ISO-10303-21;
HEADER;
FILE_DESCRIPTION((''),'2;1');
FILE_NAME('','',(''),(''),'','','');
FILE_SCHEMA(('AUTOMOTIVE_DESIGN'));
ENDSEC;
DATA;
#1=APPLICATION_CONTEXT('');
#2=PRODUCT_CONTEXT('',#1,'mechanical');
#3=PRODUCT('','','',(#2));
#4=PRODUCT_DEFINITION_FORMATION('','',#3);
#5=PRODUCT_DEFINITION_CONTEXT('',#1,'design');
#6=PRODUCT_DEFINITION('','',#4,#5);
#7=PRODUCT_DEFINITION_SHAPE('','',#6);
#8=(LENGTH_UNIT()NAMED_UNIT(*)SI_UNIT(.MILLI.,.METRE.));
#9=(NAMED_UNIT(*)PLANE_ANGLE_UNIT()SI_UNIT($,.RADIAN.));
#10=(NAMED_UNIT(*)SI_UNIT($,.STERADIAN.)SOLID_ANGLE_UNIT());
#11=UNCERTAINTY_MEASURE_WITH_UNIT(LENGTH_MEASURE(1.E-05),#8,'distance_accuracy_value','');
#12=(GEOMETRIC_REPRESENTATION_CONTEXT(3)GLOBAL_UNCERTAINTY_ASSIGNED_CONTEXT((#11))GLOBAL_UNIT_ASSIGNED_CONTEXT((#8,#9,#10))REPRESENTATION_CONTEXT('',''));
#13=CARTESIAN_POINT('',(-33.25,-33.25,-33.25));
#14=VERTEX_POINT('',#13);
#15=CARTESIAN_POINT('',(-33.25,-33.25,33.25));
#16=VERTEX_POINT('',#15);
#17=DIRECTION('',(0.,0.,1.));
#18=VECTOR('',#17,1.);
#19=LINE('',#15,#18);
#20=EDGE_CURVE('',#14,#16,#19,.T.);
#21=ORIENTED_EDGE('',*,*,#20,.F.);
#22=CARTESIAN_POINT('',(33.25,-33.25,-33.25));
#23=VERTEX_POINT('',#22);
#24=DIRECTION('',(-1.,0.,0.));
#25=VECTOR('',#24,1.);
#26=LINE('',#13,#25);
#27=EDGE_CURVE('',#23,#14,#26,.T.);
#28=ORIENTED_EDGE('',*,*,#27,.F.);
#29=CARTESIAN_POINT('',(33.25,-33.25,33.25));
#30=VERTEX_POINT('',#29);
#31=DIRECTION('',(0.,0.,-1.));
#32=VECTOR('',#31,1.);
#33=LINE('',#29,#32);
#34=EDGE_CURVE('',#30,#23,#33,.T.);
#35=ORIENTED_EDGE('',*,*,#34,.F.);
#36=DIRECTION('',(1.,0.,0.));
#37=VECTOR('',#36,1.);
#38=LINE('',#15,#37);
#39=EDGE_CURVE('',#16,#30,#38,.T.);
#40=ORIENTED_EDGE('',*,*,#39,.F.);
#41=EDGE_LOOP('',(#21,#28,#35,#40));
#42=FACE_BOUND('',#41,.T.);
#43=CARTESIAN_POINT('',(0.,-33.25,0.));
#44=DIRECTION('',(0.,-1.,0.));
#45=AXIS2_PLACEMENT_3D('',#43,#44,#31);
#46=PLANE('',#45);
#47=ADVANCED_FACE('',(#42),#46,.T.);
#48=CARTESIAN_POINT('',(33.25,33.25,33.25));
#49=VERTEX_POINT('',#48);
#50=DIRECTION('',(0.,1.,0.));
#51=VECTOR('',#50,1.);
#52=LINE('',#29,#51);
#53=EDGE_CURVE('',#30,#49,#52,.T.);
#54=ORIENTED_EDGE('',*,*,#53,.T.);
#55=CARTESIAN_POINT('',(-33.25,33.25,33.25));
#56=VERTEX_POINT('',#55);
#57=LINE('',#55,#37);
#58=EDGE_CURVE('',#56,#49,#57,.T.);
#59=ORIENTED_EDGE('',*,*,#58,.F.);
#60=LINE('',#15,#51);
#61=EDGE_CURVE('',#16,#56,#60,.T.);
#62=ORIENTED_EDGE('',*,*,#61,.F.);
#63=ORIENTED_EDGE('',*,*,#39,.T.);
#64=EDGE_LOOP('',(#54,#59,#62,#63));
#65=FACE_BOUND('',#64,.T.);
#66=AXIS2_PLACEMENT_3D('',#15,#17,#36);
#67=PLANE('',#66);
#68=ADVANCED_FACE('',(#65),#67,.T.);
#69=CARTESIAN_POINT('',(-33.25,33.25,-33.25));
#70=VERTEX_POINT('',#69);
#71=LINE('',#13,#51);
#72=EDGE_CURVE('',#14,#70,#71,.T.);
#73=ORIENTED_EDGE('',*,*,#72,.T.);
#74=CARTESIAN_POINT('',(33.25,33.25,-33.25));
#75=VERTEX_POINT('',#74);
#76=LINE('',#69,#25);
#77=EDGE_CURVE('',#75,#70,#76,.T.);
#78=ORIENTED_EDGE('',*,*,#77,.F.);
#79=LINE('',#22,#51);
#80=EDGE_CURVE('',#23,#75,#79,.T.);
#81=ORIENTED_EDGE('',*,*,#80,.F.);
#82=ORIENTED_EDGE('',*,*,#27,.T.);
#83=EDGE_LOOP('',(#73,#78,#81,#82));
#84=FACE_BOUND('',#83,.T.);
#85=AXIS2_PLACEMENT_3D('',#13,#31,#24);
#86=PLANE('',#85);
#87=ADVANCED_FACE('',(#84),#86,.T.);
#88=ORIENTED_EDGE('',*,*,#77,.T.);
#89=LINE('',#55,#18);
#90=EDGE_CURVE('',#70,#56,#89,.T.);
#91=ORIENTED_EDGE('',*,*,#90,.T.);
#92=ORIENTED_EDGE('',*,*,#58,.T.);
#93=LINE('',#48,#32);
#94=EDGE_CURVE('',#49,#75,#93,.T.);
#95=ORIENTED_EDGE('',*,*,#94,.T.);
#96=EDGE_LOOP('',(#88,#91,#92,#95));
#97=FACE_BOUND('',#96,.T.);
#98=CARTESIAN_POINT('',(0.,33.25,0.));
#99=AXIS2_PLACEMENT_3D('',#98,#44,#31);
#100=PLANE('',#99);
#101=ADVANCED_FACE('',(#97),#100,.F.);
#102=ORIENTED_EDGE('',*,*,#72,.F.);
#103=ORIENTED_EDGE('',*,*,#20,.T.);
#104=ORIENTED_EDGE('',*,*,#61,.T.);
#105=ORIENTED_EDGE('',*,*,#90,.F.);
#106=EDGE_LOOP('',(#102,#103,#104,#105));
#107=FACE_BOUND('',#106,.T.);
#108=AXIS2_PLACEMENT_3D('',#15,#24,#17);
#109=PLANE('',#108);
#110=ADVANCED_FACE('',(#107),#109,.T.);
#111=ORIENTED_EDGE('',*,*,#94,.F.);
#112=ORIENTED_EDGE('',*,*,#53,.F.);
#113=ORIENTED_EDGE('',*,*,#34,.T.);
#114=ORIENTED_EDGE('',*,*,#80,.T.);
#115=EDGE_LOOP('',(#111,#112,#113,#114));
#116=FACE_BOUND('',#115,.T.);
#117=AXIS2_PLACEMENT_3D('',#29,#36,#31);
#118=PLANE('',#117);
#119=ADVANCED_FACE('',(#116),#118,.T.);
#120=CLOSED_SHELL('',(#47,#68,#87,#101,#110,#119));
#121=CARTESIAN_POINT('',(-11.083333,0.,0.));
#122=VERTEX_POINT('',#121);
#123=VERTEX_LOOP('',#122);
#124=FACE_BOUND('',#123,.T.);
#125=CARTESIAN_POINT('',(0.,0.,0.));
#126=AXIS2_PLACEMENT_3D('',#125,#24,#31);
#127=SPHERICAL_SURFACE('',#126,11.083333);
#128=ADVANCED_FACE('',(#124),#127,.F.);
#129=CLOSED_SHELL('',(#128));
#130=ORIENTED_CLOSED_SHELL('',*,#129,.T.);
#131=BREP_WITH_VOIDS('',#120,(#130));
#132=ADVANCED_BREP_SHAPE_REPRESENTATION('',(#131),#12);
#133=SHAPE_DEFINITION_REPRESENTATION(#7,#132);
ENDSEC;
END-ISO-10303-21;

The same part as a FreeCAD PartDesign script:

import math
import FreeCAD as App
import Part
import Sketcher

V = App.Vector
Q = App.Units.Quantity

doc = App.newDocument("Part")
body = doc.addObject("PartDesign::Body", "Body")

# Sketch on XZ plane
sketch1 = doc.addObject("Sketcher::SketchObject", "Sketch")
body.addObject(sketch1)
sketch1.AttachmentSupport = (doc.XZ_Plane, [""])
sketch1.MapMode = "FlatFace"
sketch1.addGeometry([
    Part.LineSegment(V(-33, -33, 0), V(-33, 33, 0)),
    Part.LineSegment(V(-33, 33, 0), V(33, 33, 0)),
    Part.LineSegment(V(33, 33, 0), V(33, -33, 0)),
    Part.LineSegment(V(33, -33, 0), V(-33, -33, 0)),
], False)
sketch1.addConstraint([
    Sketcher.Constraint("Coincident", 0, 2, 1, 1),
    Sketcher.Constraint("Coincident", 1, 2, 2, 1),
    Sketcher.Constraint("Coincident", 2, 2, 3, 1),
    Sketcher.Constraint("Coincident", 3, 2, 0, 1),
    Sketcher.Constraint("Vertical", 0),
    Sketcher.Constraint("Horizontal", 1),
    Sketcher.Constraint("Vertical", 2),
    Sketcher.Constraint("Horizontal", 3),
    Sketcher.Constraint("Symmetric", 0, 2, 2, 2, -1, 1),
    Sketcher.Constraint("Equal", 3, 0),
    Sketcher.Constraint("DistanceX", 1, 1, 1, 2, Q("66.5 mm")),
])
pad1 = doc.addObject("PartDesign::Pad", "Pad")
body.addObject(pad1)
pad1.Profile = sketch1
pad1.Type = "TwoLengths"
pad1.Length = 33.25
pad1.Length2 = 33.25
pad1.Reversed = True

# Sketch on XZ plane
sketch2 = doc.addObject("Sketcher::SketchObject", "Sketch001")
body.addObject(sketch2)
sketch2.AttachmentSupport = (doc.XZ_Plane, [""])
sketch2.MapMode = "FlatFace"
sketch2.addGeometry([
    Part.LineSegment(V(-11, 0, 0), V(11, 0, 0)),
    Part.ArcOfCircle(Part.Circle(V(0, 0, 0), V(0, 0, 1), 11), math.radians(180), math.radians(360)),
], False)
sketch2.addConstraint([
    Sketcher.Constraint("Coincident", 0, 1, 1, 1),
    Sketcher.Constraint("Coincident", 1, 2, 0, 2),
    Sketcher.Constraint("Horizontal", 0),
    Sketcher.Constraint("Coincident", 1, 3, -1, 1),
    Sketcher.Constraint("PointOnObject", 0, 1, -1),
    Sketcher.Constraint("Radius", 1, Q("11.083333 mm")),
])
groove = doc.addObject("PartDesign::Groove", "Groove")
body.addObject(groove)
groove.Profile = sketch2
groove.ReferenceAxis = (sketch2, ["H_Axis"])
groove.Angle = 360

doc.recompute()
